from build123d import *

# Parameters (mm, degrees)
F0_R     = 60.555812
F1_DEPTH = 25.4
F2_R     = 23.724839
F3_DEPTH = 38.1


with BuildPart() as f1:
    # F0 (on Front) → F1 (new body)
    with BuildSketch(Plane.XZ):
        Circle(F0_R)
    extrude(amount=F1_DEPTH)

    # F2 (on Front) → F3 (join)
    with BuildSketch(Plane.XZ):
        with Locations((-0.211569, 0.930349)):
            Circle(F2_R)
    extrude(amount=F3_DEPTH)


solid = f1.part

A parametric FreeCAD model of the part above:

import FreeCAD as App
import Part
import Sketcher

V = App.Vector
Q = App.Units.Quantity

doc = App.newDocument("Part")
body = doc.addObject("PartDesign::Body", "Body")

sketch1 = body.newObject("Sketcher::SketchObject", "Sketch")
sketch1.AttachmentSupport = (doc.getObject("XZ_Plane"), [""])
sketch1.MapMode = "FlatFace"
sketch1.addGeometry(Part.Circle(V(0, 0, 0), V(0, 0, 1), 60.555812), False)
sketch1.addConstraint(Sketcher.Constraint("Coincident", 0, 3, -1, 1))
sketch1.addConstraint(Sketcher.Constraint("Diameter", 0, Q("121.111624 mm")))
pad1 = body.newObject("PartDesign::Pad", "Pad")
pad1.Profile = sketch1
pad1.Length = Q("1 in")

sketch2 = body.newObject("Sketcher::SketchObject", "Sketch001")
sketch2.AttachmentSupport = (doc.getObject("XZ_Plane"), [""])
sketch2.MapMode = "FlatFace"
sketch2.addGeometry(Part.Circle(V(-0.211569, 0.930349, 0), V(0, 0, 1), 23.724839), False)
sketch2.addConstraint(Sketcher.Constraint("Diameter", 0, Q("47.449678 mm")))
sketch2.addConstraint(Sketcher.Constraint("DistanceX", 0, 3, -1, 1, Q("0.211569 mm")))
sketch2.addConstraint(Sketcher.Constraint("DistanceY", -1, 1, 0, 3, Q("0.930349 mm")))
pad2 = body.newObject("PartDesign::Pad", "Pad001")
pad2.Profile = sketch2
pad2.Length = Q("1.5 in")

doc.recompute()
